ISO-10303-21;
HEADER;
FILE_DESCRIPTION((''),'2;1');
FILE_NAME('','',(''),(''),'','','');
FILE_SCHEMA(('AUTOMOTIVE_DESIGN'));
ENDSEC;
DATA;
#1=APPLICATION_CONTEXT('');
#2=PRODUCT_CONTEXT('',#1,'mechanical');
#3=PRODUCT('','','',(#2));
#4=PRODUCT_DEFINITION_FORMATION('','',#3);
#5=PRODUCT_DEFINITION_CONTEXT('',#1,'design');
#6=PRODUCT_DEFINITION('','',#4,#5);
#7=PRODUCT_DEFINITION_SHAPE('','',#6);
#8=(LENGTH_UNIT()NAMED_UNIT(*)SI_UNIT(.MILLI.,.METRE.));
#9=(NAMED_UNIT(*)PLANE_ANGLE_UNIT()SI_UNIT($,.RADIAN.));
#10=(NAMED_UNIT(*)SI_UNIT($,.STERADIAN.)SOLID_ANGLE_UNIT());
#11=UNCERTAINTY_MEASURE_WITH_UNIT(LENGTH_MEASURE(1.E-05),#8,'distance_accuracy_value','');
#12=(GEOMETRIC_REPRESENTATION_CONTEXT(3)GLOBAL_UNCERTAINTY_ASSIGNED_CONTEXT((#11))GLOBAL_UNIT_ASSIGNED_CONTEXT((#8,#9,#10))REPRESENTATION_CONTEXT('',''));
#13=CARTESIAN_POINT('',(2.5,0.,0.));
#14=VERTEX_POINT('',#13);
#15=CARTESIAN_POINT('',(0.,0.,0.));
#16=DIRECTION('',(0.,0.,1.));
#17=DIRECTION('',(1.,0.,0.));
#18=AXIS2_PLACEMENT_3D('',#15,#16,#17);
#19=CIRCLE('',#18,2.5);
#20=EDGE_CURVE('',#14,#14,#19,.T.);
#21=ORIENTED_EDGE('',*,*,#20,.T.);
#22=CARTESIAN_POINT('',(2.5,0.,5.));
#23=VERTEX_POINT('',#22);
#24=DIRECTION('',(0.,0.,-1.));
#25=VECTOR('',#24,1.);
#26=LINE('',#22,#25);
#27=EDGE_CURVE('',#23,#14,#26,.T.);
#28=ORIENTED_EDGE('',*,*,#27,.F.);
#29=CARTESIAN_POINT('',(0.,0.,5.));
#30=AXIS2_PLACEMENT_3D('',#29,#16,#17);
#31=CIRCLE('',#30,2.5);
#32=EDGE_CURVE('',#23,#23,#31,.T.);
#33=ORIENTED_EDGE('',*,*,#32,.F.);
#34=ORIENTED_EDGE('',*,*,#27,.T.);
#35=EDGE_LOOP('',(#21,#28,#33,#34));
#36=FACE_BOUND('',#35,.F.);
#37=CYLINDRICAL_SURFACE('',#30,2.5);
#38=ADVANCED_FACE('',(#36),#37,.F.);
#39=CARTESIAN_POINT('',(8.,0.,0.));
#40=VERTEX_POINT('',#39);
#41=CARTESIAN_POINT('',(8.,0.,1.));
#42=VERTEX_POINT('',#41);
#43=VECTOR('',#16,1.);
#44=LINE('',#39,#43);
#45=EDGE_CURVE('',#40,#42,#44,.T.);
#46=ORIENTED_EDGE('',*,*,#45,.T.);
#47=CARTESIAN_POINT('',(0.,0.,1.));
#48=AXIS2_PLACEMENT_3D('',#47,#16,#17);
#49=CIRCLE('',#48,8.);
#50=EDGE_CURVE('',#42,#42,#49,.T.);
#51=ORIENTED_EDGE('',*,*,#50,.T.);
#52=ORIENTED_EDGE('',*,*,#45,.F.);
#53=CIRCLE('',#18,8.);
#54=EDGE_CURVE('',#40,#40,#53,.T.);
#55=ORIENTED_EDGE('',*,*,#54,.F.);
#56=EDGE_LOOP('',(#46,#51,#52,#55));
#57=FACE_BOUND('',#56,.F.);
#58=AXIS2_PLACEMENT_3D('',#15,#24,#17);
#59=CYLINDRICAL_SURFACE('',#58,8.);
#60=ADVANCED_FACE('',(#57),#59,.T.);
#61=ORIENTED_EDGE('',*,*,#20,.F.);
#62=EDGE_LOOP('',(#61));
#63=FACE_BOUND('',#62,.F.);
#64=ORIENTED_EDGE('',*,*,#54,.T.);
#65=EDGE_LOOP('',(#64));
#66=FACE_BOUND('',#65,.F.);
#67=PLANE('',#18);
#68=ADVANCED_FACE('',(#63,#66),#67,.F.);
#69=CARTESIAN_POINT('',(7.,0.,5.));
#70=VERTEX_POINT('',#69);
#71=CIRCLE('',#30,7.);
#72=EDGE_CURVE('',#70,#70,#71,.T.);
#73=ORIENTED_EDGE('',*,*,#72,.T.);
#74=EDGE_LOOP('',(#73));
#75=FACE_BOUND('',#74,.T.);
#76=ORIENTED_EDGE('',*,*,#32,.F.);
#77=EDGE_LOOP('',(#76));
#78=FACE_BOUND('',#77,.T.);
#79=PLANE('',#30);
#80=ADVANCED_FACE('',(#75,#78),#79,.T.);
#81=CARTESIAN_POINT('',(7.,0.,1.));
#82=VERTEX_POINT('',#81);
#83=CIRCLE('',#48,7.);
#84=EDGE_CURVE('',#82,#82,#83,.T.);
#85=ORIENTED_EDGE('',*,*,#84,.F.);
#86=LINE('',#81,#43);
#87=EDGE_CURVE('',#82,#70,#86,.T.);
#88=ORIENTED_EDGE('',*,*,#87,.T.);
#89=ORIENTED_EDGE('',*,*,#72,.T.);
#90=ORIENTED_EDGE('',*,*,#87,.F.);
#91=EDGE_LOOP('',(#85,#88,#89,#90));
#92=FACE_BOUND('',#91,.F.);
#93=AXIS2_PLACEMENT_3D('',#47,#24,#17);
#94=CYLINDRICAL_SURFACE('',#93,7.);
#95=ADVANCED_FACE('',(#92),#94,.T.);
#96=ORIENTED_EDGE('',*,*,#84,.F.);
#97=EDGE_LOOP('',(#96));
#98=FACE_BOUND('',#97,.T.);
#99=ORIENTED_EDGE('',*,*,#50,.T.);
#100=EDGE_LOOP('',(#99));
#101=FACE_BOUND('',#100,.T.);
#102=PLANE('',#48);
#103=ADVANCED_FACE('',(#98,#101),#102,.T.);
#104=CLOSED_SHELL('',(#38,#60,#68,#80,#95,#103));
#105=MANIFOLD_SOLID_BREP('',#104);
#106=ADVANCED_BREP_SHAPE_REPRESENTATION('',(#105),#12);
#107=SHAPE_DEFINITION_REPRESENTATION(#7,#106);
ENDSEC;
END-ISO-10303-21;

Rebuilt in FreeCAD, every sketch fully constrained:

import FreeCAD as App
import Part
import Sketcher

doc = App.newDocument("Part")
body = doc.addObject("PartDesign::Body", "Body")

sketch1 = body.newObject("Sketcher::SketchObject", "Sketch")
sketch1.AttachmentSupport = (doc.getObject("XY_Plane"), [""])
sketch1.MapMode = "FlatFace"
sketch1.addGeometry(Part.Circle(App.Vector(0, 0, 0), App.Vector(0, 0, 1), 8), False)
sketch1.addConstraint([
    Sketcher.Constraint("Coincident", 0, 3, -1, 1),
    Sketcher.Constraint("Diameter", 0, 16.0),
])
pad1 = body.newObject("PartDesign::Pad", "Pad")
pad1.Profile = sketch1
pad1.Length = 1

sketch2 = body.newObject("Sketcher::SketchObject", "Sketch001")
sketch2.AttachmentSupport = (doc.getObject("XY_Plane"), [""])
sketch2.MapMode = "FlatFace"
sketch2.AttachmentOffset = App.Placement(App.Vector(0, 0, 1), App.Rotation())
sketch2.addGeometry(Part.Circle(App.Vector(0, 0, 0), App.Vector(0, 0, 1), 7), False)
sketch2.addConstraint([
    Sketcher.Constraint("Coincident", 0, 3, -1, 1),
    Sketcher.Constraint("Diameter", 0, 14.0),
])
pad2 = body.newObject("PartDesign::Pad", "Pad001")
pad2.Profile = sketch2
pad2.Length = 4

sketch3 = body.newObject("Sketcher::SketchObject", "Sketch002")
sketch3.AttachmentSupport = (doc.getObject("XY_Plane"), [""])
sketch3.MapMode = "FlatFace"
sketch3.AttachmentOffset = App.Placement(App.Vector(0, 0, 5), App.Rotation())
sketch3.addGeometry(Part.Circle(App.Vector(0, 0, 0), App.Vector(0, 0, 1), 2.5), False)
sketch3.addConstraint([
    Sketcher.Constraint("Coincident", 0, 3, -1, 1),
    Sketcher.Constraint("Diameter", 0, 5.0),
])
pocket1 = body.newObject("PartDesign::Pocket", "Pocket")
pocket1.Profile = sketch3
pocket1.Type = "ThroughAll"

doc.recompute()
